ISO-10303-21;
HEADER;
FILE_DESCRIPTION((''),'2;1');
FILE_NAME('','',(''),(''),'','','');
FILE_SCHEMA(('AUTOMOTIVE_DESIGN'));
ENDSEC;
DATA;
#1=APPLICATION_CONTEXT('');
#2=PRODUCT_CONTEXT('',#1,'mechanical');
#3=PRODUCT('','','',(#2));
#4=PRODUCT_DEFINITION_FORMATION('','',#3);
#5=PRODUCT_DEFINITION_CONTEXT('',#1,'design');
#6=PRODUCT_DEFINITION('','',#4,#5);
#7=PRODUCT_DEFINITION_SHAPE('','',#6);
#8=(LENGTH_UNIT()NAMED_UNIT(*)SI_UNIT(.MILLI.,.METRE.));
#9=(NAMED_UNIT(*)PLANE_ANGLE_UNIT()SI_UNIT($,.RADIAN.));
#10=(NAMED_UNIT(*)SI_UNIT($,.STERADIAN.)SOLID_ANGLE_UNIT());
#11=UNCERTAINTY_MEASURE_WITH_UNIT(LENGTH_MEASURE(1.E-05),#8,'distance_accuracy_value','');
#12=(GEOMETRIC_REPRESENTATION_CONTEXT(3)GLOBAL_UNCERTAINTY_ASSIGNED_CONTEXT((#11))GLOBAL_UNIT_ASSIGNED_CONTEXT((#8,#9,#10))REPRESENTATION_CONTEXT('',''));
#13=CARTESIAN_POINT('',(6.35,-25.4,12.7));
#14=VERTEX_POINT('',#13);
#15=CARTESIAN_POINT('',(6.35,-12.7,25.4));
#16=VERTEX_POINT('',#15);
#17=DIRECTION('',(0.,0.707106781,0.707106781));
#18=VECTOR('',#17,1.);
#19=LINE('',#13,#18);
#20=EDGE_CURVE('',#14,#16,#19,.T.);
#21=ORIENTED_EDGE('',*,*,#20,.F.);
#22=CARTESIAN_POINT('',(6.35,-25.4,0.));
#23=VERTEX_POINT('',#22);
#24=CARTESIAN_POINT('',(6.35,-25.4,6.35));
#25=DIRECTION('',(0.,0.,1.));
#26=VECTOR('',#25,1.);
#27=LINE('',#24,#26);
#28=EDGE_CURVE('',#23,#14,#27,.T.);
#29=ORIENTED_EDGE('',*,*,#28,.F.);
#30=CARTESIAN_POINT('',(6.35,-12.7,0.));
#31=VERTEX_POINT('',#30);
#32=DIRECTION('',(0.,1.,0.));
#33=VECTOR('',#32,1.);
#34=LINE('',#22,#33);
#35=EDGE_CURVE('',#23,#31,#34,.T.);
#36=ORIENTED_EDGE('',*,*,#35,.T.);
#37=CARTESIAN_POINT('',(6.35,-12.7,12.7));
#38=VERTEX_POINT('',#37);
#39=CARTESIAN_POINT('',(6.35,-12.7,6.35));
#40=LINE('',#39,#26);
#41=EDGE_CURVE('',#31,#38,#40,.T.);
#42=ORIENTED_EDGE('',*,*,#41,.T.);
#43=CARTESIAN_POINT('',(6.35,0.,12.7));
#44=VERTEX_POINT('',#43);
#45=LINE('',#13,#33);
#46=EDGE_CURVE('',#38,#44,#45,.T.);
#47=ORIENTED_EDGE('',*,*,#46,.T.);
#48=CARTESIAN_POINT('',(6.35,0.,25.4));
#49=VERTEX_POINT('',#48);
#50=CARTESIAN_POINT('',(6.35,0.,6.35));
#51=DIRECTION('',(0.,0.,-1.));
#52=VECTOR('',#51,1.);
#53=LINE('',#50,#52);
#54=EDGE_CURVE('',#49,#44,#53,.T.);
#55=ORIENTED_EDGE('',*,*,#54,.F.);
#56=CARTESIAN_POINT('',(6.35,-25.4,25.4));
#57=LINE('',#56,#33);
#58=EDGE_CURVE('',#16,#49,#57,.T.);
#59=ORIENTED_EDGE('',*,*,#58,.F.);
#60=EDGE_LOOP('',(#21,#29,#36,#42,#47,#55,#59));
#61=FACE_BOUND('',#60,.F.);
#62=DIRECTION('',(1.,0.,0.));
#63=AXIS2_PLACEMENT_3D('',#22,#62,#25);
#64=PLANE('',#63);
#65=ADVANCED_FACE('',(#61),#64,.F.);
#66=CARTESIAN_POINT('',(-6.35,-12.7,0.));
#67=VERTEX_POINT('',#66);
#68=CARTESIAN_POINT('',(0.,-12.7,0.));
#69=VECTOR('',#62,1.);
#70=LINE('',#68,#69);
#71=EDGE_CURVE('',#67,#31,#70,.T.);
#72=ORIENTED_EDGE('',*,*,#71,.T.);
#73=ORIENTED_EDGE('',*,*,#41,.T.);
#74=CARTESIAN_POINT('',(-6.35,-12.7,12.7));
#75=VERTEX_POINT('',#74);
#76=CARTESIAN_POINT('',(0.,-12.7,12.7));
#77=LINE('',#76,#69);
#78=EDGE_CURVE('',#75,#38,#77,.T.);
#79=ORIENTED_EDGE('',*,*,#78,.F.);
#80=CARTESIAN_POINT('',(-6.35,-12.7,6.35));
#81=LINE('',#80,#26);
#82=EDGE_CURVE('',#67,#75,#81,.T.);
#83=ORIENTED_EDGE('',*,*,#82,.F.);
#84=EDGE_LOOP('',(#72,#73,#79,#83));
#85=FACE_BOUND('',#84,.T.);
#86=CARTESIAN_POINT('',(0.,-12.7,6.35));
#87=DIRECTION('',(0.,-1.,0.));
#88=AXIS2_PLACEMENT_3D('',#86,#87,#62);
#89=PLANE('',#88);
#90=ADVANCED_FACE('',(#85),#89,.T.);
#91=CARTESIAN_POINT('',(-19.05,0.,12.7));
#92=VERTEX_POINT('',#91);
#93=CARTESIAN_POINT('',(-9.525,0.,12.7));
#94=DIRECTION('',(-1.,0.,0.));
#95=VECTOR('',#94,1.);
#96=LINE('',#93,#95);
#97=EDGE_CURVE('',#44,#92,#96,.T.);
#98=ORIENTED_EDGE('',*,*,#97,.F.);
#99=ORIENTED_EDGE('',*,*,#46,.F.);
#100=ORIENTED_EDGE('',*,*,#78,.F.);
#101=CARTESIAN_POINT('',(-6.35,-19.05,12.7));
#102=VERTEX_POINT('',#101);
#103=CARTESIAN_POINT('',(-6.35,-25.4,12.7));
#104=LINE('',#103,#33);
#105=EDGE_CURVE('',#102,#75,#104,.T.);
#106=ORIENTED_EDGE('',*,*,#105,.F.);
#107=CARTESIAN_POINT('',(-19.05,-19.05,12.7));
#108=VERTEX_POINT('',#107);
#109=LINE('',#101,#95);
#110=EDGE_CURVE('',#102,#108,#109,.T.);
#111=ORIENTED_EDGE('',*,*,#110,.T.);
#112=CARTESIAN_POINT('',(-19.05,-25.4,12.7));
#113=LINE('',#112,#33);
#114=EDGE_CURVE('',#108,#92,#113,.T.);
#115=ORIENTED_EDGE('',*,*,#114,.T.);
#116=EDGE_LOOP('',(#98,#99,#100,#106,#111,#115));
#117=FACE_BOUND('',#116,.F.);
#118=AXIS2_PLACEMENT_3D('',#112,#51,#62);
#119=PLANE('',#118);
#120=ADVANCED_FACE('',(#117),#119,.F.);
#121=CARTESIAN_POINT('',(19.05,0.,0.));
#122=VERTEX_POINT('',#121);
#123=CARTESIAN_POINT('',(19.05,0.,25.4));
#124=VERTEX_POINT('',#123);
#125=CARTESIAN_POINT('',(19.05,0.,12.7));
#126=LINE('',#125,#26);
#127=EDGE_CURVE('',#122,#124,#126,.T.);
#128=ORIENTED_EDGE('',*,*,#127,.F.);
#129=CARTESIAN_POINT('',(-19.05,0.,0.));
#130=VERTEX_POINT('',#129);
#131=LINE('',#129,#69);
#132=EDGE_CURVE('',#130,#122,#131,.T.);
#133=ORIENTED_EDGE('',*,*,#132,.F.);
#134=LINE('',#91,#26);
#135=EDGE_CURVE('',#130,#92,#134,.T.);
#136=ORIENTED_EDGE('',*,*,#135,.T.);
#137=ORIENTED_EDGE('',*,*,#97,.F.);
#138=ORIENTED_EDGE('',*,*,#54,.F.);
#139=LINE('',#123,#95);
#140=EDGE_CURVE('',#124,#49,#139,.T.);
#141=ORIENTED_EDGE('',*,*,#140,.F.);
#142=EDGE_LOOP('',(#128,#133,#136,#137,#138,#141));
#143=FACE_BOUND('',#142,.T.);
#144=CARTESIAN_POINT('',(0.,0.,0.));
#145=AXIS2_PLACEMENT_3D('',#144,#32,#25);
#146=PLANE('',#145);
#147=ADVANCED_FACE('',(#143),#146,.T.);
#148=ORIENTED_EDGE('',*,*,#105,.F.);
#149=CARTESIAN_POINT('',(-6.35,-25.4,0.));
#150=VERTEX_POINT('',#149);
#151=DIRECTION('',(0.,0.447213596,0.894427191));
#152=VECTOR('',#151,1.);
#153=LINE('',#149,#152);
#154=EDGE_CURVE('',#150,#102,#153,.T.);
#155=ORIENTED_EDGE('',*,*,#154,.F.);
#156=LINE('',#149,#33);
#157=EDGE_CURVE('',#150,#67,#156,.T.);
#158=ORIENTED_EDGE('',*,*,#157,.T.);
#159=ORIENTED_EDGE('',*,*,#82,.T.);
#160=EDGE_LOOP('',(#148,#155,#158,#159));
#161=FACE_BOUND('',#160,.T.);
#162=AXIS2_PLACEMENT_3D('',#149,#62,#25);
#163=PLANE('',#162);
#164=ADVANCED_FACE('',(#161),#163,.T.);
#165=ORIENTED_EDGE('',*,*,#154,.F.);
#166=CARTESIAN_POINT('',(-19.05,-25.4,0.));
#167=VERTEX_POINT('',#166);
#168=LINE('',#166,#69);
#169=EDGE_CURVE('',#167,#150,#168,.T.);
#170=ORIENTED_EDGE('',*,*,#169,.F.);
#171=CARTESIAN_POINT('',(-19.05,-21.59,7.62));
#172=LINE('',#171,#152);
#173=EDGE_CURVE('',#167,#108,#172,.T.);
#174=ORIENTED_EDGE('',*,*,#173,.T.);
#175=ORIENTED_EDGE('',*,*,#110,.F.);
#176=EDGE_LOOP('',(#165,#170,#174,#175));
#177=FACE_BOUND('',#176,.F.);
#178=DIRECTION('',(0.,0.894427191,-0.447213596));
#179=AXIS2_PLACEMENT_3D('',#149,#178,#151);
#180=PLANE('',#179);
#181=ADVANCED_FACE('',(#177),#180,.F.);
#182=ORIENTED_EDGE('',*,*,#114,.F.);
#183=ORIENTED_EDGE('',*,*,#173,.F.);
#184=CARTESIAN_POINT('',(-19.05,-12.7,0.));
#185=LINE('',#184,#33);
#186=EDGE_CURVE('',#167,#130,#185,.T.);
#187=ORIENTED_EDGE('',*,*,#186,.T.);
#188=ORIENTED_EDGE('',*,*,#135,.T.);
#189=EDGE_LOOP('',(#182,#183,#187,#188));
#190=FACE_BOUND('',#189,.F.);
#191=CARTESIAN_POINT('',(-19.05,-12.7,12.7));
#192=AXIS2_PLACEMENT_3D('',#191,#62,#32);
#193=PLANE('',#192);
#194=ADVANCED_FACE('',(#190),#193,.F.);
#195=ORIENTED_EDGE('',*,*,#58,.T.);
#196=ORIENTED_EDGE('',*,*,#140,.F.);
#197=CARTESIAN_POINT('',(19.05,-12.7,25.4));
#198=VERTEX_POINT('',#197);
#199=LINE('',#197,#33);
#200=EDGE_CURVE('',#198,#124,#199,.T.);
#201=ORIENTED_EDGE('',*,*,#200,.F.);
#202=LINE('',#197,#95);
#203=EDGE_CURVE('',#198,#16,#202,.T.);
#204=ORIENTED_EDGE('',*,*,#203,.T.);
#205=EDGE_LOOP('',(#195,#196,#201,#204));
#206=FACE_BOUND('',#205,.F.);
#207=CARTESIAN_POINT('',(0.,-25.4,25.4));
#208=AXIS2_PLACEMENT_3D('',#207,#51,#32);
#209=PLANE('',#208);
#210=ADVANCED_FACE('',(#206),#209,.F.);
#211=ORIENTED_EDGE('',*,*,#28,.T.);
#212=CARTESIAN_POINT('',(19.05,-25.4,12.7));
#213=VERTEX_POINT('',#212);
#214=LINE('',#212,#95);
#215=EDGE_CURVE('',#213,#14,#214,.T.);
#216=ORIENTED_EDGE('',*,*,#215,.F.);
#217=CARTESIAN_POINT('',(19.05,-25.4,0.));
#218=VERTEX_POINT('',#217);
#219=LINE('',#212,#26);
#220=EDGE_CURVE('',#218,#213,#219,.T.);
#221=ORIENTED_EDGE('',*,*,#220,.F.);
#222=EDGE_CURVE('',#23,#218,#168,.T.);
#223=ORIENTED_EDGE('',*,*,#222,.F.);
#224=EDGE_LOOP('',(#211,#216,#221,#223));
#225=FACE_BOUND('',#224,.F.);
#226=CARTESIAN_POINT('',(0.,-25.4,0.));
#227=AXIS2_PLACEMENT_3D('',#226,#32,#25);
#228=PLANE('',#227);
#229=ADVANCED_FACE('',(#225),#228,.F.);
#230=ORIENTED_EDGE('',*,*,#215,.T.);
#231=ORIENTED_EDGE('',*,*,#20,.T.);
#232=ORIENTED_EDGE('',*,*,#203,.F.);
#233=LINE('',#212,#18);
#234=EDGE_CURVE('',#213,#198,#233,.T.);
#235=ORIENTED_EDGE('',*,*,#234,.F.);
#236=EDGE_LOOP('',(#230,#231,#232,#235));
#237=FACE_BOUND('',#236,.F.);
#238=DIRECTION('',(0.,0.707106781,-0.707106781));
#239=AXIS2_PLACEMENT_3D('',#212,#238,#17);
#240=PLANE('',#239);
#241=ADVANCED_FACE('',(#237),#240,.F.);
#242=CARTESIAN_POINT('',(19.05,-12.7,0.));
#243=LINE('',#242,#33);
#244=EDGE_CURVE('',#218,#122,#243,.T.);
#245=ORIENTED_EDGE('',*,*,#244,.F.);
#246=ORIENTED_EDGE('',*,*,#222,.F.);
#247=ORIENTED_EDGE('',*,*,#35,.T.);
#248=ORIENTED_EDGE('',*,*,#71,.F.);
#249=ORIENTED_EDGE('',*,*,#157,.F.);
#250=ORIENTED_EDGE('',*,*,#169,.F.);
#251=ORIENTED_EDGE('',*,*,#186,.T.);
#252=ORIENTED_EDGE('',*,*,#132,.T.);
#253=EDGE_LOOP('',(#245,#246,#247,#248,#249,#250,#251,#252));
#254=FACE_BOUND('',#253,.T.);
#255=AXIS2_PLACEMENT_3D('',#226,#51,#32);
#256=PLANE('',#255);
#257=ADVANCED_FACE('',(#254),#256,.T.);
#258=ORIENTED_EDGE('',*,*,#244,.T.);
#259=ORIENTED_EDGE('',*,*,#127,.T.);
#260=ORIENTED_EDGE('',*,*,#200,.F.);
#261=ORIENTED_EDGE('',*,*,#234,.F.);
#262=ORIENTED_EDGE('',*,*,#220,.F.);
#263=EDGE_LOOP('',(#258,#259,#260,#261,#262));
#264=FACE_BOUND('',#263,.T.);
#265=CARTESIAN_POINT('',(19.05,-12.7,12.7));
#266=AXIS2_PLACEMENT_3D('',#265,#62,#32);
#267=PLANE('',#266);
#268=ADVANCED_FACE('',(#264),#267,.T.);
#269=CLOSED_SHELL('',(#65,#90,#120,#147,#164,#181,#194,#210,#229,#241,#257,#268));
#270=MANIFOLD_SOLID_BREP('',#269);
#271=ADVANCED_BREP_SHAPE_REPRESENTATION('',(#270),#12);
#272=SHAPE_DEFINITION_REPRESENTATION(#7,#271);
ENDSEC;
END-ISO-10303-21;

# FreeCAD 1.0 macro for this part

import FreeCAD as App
import Part
import Sketcher

V = App.Vector
Q = App.Units.Quantity


def add_polygon(sketch, points):
    """Adds a closed chain of lines whose ends are joined by coincident constraints."""
    first, n = sketch.GeometryCount, len(points)
    for a, b in zip(points, points[1:] + points[:1]):
        sketch.addGeometry(Part.LineSegment(App.Vector(*a, 0), App.Vector(*b, 0)), False)
    for i in range(n):
        sketch.addConstraint(Sketcher.Constraint("Coincident", first + i, 2, first + (i + 1) % n, 1))

doc = App.newDocument("Part")
body = doc.addObject("PartDesign::Body", "Body")

# Sketch on YZ plane
sketch1 = body.newObject("Sketcher::SketchObject", "Sketch")
sketch1.AttachmentSupport = (doc.getObject("YZ_Plane"), [""])
sketch1.MapMode = "FlatFace"
add_polygon(sketch1, [(-25, 25), (-25, 0), (0, 0), (0, 25)])  # lines 0-3
sketch1.addConstraint([
    Sketcher.Constraint("Vertical", 0),
    Sketcher.Constraint("Horizontal", 1),
    Sketcher.Constraint("Vertical", 2),
    Sketcher.Constraint("Horizontal", 3),
    Sketcher.Constraint("Coincident", 1, 2, -1, 1),
    Sketcher.Constraint("Equal", 3, 0),
    Sketcher.Constraint("DistanceX", 1, 1, 1, 2, Q("1 in")),
])
pad1 = body.newObject("PartDesign::Pad", "Pad")
pad1.Profile = sketch1
pad1.Length = Q("1.5 in")
pad1.Midplane = True

# Sketch on YZ plane
sketch2 = body.newObject("Sketcher::SketchObject", "Sketch001")
sketch2.AttachmentSupport = (doc.getObject("YZ_Plane"), [""])
sketch2.MapMode = "FlatFace"
sketch2.AttachmentOffset = App.Placement(V(0, 0, 0.75 * 25.4), App.Rotation())
add_polygon(sketch2, [(-25, 25), (-25, 13), (-13, 25)])  # lines 0-2
sketch2.addConstraint([
    Sketcher.Constraint("Vertical", 0),
    Sketcher.Constraint("Horizontal", 2),
    Sketcher.Constraint("Equal", 2, 0),
    Sketcher.Constraint("DistanceX", 2, 2, 2, 1, Q("0.5 in")),
    Sketcher.Constraint("DistanceX", 0, 2, -1, 1, Q("1 in")),
    Sketcher.Constraint("DistanceY", -1, 1, 1, 2, Q("1 in")),
])
pocket1 = body.newObject("PartDesign::Pocket", "Pocket")
pocket1.Profile = sketch2
pocket1.Length = Q("0.5 in")

# Sketch on XZ plane
sketch3 = body.newObject("Sketcher::SketchObject", "Sketch002")
sketch3.AttachmentSupport = (doc.getObject("XZ_Plane"), [""])
sketch3.MapMode = "FlatFace"
sketch3.AttachmentOffset = App.Placement(V(0, 0, 1 * 25.4), App.Rotation())
add_polygon(sketch3, [(-19, 25), (-19, 13), (6, 13), (6, 25)])  # lines 0-3
sketch3.addConstraint([
    Sketcher.Constraint("Vertical", 0),
    Sketcher.Constraint("Horizontal", 1),
    Sketcher.Constraint("Vertical", 2),
    Sketcher.Constraint("Horizontal", 3),
    Sketcher.Constraint("DistanceX", 1, 1, 1, 2, Q("1 in")),
    Sketcher.Constraint("DistanceY", 0, 2, 0, 1, Q("0.5 in")),
    Sketcher.Constraint("DistanceY", -1, 1, 2, 2, Q("1 in")),
    Sketcher.Constraint("DistanceX", 0, 2, -1, 1, Q("0.75 in")),
])
pocket2 = body.newObject("PartDesign::Pocket", "Pocket001")
pocket2.Profile = sketch3
pocket2.Type = "ThroughAll"

# Sketch on XZ plane
sketch4 = body.newObject("Sketcher::SketchObject", "Sketch003")
sketch4.AttachmentSupport = (doc.getObject("XZ_Plane"), [""])
sketch4.MapMode = "FlatFace"
sketch4.AttachmentOffset = App.Placement(V(0, 0, 1 * 25.4), App.Rotation())
add_polygon(sketch4, [(-6, 13), (-6, 0), (6, 0), (6, 13)])  # lines 0-3
sketch4.addConstraint([
    Sketcher.Constraint("Vertical", 0),
    Sketcher.Constraint("Horizontal", 1),
    Sketcher.Constraint("Vertical", 2),
    Sketcher.Constraint("Horizontal", 3),
    Sketcher.Constraint("Symmetric", 0, 2, 1, 2, -1, 1),
    Sketcher.Constraint("Equal", 3, 0),
    Sketcher.Constraint("DistanceX", 1, 1, 1, 2, Q("0.5 in")),
])
pocket3 = body.newObject("PartDesign::Pocket", "Pocket002")
pocket3.Profile = sketch4
pocket3.Length = Q("0.5 in")

# Sketch on YZ plane
sketch5 = body.newObject("Sketcher::SketchObject", "Sketch004")
sketch5.AttachmentSupport = (doc.getObject("YZ_Plane"), [""])
sketch5.MapMode = "FlatFace"
sketch5.AttachmentOffset = App.Placement(V(0, 0, -0.25 * 25.4), App.Rotation())
add_polygon(sketch5, [(-25, 0), (-19, 13), (-25, 13)])  # lines 0-2
sketch5.addConstraint([
    Sketcher.Constraint("Horizontal", 1),
    Sketcher.Constraint("Vertical", 2),
    Sketcher.Constraint("PointOnObject", 2, 2, -1),
    Sketcher.Constraint("DistanceY", 2, 2, 2, 1, Q("0.5 in")),
    Sketcher.Constraint("DistanceX", 1, 2, -1, 1, Q("1 in")),
    Sketcher.Constraint("DistanceX", 1, 2, 1, 1, Q("0.25 in")),
])
pocket4 = body.newObject("PartDesign::Pocket", "Pocket003")
pocket4.Profile = sketch5
pocket4.Type = "ThroughAll"

doc.recompute()
